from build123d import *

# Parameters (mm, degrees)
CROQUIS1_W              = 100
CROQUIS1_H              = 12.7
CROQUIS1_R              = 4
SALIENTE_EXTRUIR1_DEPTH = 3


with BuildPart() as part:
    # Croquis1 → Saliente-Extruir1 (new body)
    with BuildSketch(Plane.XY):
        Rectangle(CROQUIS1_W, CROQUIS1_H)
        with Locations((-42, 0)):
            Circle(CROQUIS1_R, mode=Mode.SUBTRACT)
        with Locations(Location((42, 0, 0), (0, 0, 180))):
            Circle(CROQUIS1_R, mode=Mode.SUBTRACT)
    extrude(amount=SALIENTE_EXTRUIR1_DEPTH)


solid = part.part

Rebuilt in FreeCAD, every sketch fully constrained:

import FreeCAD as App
import Part
import Sketcher
from FreeCAD import Vector

doc = App.newDocument("Part")
params = doc.addObject("Spreadsheet::Sheet", "Params")
for row, (alias, value) in enumerate([
    ("sketch1_diameter", "8 mm"),
    ("sketch1_width", "100 mm"),
    ("sketch1_height", "12.7 mm"),
    ("pad1_length", "3 mm"),
], start=1):
    params.set(f"A{row}", alias)
    params.set(f"B{row}", "=" + value)
    params.setAlias(f"B{row}", alias)

body = doc.addObject("PartDesign::Body", "Body")

# Sketch on XY plane
sketch1 = body.newObject("Sketcher::SketchObject", "Sketch")
sketch1.AttachmentSupport = (doc.getObject("XY_Plane"), [""])
sketch1.MapMode = "FlatFace"
sketch1.addGeometry(Part.LineSegment(Vector(-50, 6.3, 0), Vector(-50, -6.3, 0)), False)
sketch1.addGeometry(Part.LineSegment(Vector(-50, -6.3, 0), Vector(50, -6.3, 0)), False)
sketch1.addGeometry(Part.LineSegment(Vector(50, -6.3, 0), Vector(50, 6.3, 0)), False)
sketch1.addGeometry(Part.LineSegment(Vector(50, 6.3, 0), Vector(-50, 6.3, 0)), False)
sketch1.addGeometry(Part.Circle(Vector(-42, 0, 0), Vector(0, 0, 1), 4), False)
sketch1.addGeometry(Part.Circle(Vector(42, 0, 0), Vector(0, 0, 1), 4), False)
sketch1.addConstraint(Sketcher.Constraint("Coincident", 0, 2, 1, 1))
sketch1.addConstraint(Sketcher.Constraint("Coincident", 1, 2, 2, 1))
sketch1.addConstraint(Sketcher.Constraint("Coincident", 2, 2, 3, 1))
sketch1.addConstraint(Sketcher.Constraint("Coincident", 3, 2, 0, 1))
sketch1.addConstraint(Sketcher.Constraint("Vertical", 0))
sketch1.addConstraint(Sketcher.Constraint("Horizontal", 1))
sketch1.addConstraint(Sketcher.Constraint("Vertical", 2))
sketch1.addConstraint(Sketcher.Constraint("Horizontal", 3))
sketch1.addConstraint(Sketcher.Constraint("Equal", 4, 5))
sketch1.addConstraint(Sketcher.Constraint("Symmetric", 4, 3, 5, 3, -1, 1))
sketch1.addConstraint(Sketcher.Constraint("Symmetric", 0, 2, 2, 2, -1, 1))
sketch1.addConstraint(Sketcher.Constraint("PointOnObject", 4, 3, -1))
sketch1.addConstraint(Sketcher.Constraint("Diameter", 4, 8.0))
sketch1.addConstraint(Sketcher.Constraint("DistanceX", 1, 1, 1, 2, 100.0))
sketch1.addConstraint(Sketcher.Constraint("DistanceY", 0, 2, 0, 1, 12.7))
sketch1.addConstraint(Sketcher.Constraint("DistanceX", 4, 3, -1, 1, 42.0))
sketch1.setExpression("Constraints[12]", "Params.sketch1_diameter")
sketch1.setExpression("Constraints[13]", "Params.sketch1_width")
sketch1.setExpression("Constraints[14]", "Params.sketch1_height")
pad1 = body.newObject("PartDesign::Pad", "Pad")
pad1.Profile = sketch1
pad1.setExpression("Length", "Params.pad1_length")

doc.recompute()
